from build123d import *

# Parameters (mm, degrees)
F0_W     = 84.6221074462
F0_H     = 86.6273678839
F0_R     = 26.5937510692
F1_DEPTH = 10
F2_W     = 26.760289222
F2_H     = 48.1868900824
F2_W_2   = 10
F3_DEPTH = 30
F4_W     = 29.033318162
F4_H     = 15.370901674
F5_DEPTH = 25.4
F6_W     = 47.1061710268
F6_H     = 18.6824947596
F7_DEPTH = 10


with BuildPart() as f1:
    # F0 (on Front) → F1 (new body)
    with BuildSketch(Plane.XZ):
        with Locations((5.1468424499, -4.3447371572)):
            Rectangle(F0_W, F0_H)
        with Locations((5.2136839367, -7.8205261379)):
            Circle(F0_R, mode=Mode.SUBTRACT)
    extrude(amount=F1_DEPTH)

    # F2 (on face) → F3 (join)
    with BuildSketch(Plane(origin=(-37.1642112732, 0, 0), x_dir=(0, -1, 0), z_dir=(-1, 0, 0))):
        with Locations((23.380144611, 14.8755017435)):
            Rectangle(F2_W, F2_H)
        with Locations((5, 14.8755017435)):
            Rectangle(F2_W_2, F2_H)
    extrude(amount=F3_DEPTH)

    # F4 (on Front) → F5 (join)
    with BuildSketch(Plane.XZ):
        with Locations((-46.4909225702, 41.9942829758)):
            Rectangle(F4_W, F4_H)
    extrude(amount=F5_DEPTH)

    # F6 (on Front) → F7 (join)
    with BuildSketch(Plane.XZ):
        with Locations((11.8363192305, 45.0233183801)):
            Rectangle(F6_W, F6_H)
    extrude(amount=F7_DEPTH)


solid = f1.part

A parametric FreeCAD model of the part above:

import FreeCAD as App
import Part
import Sketcher

V = App.Vector
Q = App.Units.Quantity

doc = App.newDocument("Part")
body = doc.addObject("PartDesign::Body", "Body")

# Sketch on XZ plane
sketch1 = body.newObject("Sketcher::SketchObject", "Sketch")
sketch1.AttachmentSupport = (doc.getObject("XZ_Plane"), [""])
sketch1.MapMode = "FlatFace"
sketch1.addGeometry([
    Part.LineSegment(V(-37.164211, 38.968947, 0), V(-37.164211, -47.658421, 0)),  # 0
    Part.LineSegment(V(-37.164211, -47.658421, 0), V(47.457896, -47.658421, 0)),  # 1
    Part.LineSegment(V(47.457896, -47.658421, 0), V(47.457896, 38.968947, 0)),  # 2
    Part.LineSegment(V(47.457896, 38.968947, 0), V(-37.164211, 38.968947, 0)),  # 3
    Part.Circle(V(5.213684, -7.820526, 0), V(0, 0, 1), 26.593751),  # 4
], False)
sketch1.addConstraint([
    Sketcher.Constraint("Coincident", 0, 2, 1, 1),
    Sketcher.Constraint("Coincident", 1, 2, 2, 1),
    Sketcher.Constraint("Coincident", 2, 2, 3, 1),
    Sketcher.Constraint("Coincident", 3, 2, 0, 1),
    Sketcher.Constraint("Vertical", 0),
    Sketcher.Constraint("Horizontal", 1),
    Sketcher.Constraint("Vertical", 2),
    Sketcher.Constraint("Horizontal", 3),
    Sketcher.Constraint("Diameter", 4, Q("53.187502 mm")),
    Sketcher.Constraint("DistanceX", 1, 1, 1, 2, Q("84.622107 mm")),
    Sketcher.Constraint("DistanceY", 0, 2, 0, 1, Q("86.627368 mm")),
    Sketcher.Constraint("DistanceX", 0, 2, -1, 1, Q("37.164211 mm")),
    Sketcher.Constraint("DistanceY", 0, 2, -1, 1, Q("47.658421 mm")),
    Sketcher.Constraint("DistanceX", -1, 1, 4, 3, Q("5.213684 mm")),
    Sketcher.Constraint("DistanceY", 4, 3, -1, 1, Q("7.820526 mm")),
])
pad1 = body.newObject("PartDesign::Pad", "Pad")
pad1.Profile = sketch1
pad1.Length = 10

# Sketch on YZ plane
sketch2 = body.newObject("Sketcher::SketchObject", "Sketch001")
sketch2.AttachmentSupport = (doc.getObject("YZ_Plane"), [""])
sketch2.MapMode = "FlatFace"
sketch2.AttachmentOffset = App.Placement(V(0, 0, -37.164211), App.Rotation())
sketch2.addGeometry([
    Part.LineSegment(V(-36.760289, -9.217943, 0), V(-36.760289, 38.968947, 0)),
    Part.LineSegment(V(-36.760289, 38.968947, 0), V(0, 38.968947, 0)),
    Part.LineSegment(V(0, 38.968947, 0), V(0, -9.217943, 0)),
    Part.LineSegment(V(0, -9.217943, 0), V(-36.760289, -9.217943, 0)),
], False)
sketch2.addConstraint([
    Sketcher.Constraint("Coincident", 0, 2, 1, 1),
    Sketcher.Constraint("Coincident", 1, 2, 2, 1),
    Sketcher.Constraint("Coincident", 2, 2, 3, 1),
    Sketcher.Constraint("Coincident", 3, 2, 0, 1),
    Sketcher.Constraint("Vertical", 0),
    Sketcher.Constraint("Horizontal", 1),
    Sketcher.Constraint("Vertical", 2),
    Sketcher.Constraint("Horizontal", 3),
    Sketcher.Constraint("PointOnObject", 1, 2, -2),
    Sketcher.Constraint("DistanceX", 1, 1, 1, 2, Q("36.760289 mm")),
    Sketcher.Constraint("DistanceY", 0, 1, 0, 2, Q("48.18689 mm")),
    Sketcher.Constraint("DistanceY", -1, 1, 0, 2, Q("38.968947 mm")),
])
pad2 = body.newObject("PartDesign::Pad", "Pad001")
pad2.Profile = sketch2
pad2.Length = 30
pad2.Reversed = True

# Sketch on XZ plane
sketch3 = body.newObject("Sketcher::SketchObject", "Sketch002")
sketch3.AttachmentSupport = (doc.getObject("XZ_Plane"), [""])
sketch3.MapMode = "FlatFace"
sketch3.addGeometry([
    Part.LineSegment(V(-61.007582, 49.679734, 0), V(-61.007582, 34.308832, 0)),
    Part.LineSegment(V(-61.007582, 34.308832, 0), V(-31.974263, 34.308832, 0)),
    Part.LineSegment(V(-31.974263, 34.308832, 0), V(-31.974263, 49.679734, 0)),
    Part.LineSegment(V(-31.974263, 49.679734, 0), V(-61.007582, 49.679734, 0)),
], False)
sketch3.addConstraint([
    Sketcher.Constraint("Coincident", 0, 2, 1, 1),
    Sketcher.Constraint("Coincident", 1, 2, 2, 1),
    Sketcher.Constraint("Coincident", 2, 2, 3, 1),
    Sketcher.Constraint("Coincident", 3, 2, 0, 1),
    Sketcher.Constraint("Vertical", 0),
    Sketcher.Constraint("Horizontal", 1),
    Sketcher.Constraint("Vertical", 2),
    Sketcher.Constraint("Horizontal", 3),
    Sketcher.Constraint("DistanceY", 0, 2, 0, 1, Q("15.370902 mm")),
    Sketcher.Constraint("DistanceX", 1, 1, 1, 2, Q("29.033318 mm")),
    Sketcher.Constraint("DistanceX", 0, 2, -1, 1, Q("61.007582 mm")),
    Sketcher.Constraint("DistanceY", -1, 1, 0, 2, Q("34.308832 mm")),
])
pad3 = body.newObject("PartDesign::Pad", "Pad002")
pad3.Profile = sketch3
pad3.Length = 25.4

# Sketch on XZ plane
sketch4 = body.newObject("Sketcher::SketchObject", "Sketch003")
sketch4.AttachmentSupport = (doc.getObject("XZ_Plane"), [""])
sketch4.MapMode = "FlatFace"
sketch4.addGeometry([
    Part.LineSegment(V(-11.716766, 54.364566, 0), V(-11.716766, 35.682071, 0)),
    Part.LineSegment(V(-11.716766, 35.682071, 0), V(35.389405, 35.682071, 0)),
    Part.LineSegment(V(35.389405, 35.682071, 0), V(35.389405, 54.364566, 0)),
    Part.LineSegment(V(35.389405, 54.364566, 0), V(-11.716766, 54.364566, 0)),
], False)
sketch4.addConstraint([
    Sketcher.Constraint("Coincident", 0, 2, 1, 1),
    Sketcher.Constraint("Coincident", 1, 2, 2, 1),
    Sketcher.Constraint("Coincident", 2, 2, 3, 1),
    Sketcher.Constraint("Coincident", 3, 2, 0, 1),
    Sketcher.Constraint("Vertical", 0),
    Sketcher.Constraint("Horizontal", 1),
    Sketcher.Constraint("Vertical", 2),
    Sketcher.Constraint("Horizontal", 3),
    Sketcher.Constraint("DistanceX", 1, 1, 1, 2, Q("47.106171 mm")),
    Sketcher.Constraint("DistanceY", 0, 2, 0, 1, Q("18.682495 mm")),
    Sketcher.Constraint("DistanceY", -1, 1, 0, 2, Q("35.682071 mm")),
    Sketcher.Constraint("DistanceX", 0, 2, -1, 1, Q("11.716766 mm")),
])
pad4 = body.newObject("PartDesign::Pad", "Pad003")
pad4.Profile = sketch4
pad4.Length = 10

doc.recompute()
